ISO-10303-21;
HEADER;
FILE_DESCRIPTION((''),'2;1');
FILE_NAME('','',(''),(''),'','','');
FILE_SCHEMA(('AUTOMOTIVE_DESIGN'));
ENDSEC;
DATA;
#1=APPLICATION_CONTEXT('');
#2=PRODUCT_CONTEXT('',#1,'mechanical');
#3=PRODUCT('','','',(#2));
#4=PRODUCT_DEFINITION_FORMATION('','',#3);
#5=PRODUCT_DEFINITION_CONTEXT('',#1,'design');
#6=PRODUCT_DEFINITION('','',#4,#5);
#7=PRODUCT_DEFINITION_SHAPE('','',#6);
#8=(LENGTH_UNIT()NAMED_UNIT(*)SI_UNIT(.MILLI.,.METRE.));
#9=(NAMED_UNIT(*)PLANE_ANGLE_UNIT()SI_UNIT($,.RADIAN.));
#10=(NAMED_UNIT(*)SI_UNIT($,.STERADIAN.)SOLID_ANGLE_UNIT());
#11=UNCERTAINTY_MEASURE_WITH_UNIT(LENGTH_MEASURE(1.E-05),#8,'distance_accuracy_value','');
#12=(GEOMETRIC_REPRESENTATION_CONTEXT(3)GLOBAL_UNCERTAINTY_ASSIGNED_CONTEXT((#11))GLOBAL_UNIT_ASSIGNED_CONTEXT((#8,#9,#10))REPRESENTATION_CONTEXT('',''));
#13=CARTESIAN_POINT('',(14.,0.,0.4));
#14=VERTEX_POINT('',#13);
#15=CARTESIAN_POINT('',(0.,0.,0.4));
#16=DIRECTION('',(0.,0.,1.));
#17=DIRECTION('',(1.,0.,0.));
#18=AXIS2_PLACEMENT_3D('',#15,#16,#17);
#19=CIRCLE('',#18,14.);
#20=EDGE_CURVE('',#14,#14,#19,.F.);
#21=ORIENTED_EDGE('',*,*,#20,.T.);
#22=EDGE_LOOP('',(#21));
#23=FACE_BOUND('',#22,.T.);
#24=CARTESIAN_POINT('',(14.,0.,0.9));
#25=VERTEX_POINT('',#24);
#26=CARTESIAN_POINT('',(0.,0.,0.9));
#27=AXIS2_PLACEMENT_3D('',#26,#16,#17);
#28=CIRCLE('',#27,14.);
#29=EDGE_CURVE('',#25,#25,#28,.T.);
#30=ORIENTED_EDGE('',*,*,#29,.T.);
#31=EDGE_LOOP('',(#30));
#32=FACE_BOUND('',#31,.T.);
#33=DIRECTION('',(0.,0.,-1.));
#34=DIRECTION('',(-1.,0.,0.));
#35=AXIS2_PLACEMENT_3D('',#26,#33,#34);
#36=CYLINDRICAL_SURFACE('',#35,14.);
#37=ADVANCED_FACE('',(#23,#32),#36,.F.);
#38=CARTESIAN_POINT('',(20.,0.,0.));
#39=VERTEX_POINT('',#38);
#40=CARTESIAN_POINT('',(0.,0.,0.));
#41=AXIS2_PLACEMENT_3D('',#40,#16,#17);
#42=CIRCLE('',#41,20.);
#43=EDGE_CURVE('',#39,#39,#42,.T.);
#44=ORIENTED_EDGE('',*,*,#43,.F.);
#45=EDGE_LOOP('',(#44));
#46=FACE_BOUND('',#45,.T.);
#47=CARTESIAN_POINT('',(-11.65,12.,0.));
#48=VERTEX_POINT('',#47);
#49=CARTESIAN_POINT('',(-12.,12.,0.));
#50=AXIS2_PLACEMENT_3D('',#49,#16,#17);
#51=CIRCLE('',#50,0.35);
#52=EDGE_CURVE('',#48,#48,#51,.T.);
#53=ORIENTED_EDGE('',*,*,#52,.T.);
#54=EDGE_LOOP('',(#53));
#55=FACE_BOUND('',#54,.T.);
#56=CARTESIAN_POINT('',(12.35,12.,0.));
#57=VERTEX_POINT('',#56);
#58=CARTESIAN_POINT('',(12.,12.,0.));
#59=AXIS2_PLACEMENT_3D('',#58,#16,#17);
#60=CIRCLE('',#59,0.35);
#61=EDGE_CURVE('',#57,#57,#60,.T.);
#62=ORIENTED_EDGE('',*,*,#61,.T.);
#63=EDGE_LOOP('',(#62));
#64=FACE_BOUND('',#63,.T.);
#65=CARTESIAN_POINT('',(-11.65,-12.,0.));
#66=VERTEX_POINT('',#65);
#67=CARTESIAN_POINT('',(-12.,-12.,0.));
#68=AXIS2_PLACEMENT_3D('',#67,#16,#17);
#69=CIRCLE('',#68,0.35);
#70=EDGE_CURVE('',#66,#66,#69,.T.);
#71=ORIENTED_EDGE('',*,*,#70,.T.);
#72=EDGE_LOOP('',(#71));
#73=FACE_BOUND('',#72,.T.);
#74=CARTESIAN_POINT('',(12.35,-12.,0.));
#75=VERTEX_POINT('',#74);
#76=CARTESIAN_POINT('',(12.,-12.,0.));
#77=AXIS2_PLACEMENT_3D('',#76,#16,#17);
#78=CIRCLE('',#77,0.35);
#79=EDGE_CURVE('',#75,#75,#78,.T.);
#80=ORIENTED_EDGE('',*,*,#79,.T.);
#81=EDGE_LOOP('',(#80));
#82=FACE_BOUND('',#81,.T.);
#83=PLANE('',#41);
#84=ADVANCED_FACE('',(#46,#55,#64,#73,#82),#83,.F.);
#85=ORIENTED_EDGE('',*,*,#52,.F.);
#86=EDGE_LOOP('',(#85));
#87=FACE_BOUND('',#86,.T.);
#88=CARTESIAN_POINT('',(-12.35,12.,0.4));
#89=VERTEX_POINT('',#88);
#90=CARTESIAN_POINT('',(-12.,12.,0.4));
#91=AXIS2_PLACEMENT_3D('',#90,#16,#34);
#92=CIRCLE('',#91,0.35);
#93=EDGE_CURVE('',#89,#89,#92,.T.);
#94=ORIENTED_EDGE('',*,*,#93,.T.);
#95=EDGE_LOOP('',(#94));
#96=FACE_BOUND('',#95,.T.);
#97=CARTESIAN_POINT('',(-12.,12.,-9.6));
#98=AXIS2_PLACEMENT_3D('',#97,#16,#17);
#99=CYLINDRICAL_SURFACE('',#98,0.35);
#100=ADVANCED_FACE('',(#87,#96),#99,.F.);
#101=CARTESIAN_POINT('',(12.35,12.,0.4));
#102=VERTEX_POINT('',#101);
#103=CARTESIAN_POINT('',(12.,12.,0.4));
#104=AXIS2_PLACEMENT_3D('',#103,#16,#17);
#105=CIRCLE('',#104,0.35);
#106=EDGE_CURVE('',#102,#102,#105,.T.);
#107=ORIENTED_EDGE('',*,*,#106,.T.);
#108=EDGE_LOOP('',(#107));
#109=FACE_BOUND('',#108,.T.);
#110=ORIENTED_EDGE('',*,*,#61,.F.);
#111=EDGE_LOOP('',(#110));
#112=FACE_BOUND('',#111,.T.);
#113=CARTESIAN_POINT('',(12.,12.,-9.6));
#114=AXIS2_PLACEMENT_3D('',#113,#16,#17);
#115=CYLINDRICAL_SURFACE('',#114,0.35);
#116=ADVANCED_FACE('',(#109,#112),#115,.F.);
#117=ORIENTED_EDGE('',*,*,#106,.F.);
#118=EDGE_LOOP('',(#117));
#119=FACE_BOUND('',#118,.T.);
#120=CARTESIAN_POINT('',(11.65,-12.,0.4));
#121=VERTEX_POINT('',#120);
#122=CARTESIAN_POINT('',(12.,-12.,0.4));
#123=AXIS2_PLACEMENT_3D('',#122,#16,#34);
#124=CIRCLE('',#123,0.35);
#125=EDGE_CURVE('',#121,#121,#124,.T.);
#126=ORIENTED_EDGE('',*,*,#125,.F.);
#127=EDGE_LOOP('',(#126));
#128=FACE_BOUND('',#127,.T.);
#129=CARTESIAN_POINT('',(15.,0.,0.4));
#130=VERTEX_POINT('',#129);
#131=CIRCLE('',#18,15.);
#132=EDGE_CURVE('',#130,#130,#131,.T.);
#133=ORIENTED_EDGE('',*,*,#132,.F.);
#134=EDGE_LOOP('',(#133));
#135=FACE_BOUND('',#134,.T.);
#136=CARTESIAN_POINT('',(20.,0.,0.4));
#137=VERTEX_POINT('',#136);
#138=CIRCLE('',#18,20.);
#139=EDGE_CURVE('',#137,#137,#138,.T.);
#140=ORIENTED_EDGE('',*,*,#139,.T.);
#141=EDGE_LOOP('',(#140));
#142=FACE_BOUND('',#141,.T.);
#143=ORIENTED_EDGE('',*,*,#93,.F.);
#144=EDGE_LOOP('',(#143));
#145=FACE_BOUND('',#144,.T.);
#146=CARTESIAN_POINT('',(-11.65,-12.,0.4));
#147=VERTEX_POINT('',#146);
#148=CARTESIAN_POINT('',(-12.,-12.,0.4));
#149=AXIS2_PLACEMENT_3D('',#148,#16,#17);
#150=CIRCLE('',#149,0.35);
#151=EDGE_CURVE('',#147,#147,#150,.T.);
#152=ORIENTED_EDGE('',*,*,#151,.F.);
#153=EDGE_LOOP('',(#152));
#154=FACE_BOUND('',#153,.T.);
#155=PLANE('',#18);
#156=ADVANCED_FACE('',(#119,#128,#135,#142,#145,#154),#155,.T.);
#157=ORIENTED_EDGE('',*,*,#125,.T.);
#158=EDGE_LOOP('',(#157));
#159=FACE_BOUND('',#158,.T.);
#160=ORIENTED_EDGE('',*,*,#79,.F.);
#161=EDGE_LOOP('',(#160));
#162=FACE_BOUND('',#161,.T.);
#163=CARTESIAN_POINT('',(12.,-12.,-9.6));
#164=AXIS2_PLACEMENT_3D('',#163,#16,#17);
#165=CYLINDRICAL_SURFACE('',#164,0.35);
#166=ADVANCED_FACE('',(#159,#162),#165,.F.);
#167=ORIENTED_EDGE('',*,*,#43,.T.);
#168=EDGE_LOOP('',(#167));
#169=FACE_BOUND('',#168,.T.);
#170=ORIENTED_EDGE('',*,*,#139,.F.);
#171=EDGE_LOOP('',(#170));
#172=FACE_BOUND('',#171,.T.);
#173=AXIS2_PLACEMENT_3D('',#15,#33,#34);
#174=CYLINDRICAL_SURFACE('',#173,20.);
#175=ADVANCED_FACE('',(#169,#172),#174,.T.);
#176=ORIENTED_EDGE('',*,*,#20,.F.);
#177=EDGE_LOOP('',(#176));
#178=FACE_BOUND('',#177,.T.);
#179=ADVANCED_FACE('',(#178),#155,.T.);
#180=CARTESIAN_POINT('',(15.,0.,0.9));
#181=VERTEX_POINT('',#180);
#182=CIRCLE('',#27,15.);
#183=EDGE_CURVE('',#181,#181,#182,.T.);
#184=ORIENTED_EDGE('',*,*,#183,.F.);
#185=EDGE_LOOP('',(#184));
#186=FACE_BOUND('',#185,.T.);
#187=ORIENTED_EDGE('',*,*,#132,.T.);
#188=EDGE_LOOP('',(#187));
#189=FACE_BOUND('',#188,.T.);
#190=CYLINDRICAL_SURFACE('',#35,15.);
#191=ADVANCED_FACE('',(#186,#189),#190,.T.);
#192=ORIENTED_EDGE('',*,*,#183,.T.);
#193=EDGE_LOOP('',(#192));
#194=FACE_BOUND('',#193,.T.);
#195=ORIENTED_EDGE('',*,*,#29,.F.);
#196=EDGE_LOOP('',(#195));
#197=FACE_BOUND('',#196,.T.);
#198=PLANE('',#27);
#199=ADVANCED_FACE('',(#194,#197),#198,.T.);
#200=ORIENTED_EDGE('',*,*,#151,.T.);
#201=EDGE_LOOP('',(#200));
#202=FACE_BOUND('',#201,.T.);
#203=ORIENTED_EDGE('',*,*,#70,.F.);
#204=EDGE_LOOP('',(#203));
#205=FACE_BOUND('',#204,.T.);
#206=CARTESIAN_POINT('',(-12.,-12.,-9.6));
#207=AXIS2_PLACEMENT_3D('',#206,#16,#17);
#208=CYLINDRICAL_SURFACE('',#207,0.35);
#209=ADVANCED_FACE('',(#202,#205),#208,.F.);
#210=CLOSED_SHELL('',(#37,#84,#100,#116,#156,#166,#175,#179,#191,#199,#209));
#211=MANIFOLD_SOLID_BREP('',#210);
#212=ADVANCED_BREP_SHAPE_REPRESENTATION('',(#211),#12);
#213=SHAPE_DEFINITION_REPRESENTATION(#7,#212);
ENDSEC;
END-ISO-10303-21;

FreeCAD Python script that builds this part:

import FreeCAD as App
import Part
import Sketcher

doc = App.newDocument("Part")
body = doc.addObject("PartDesign::Body", "Body")

# Sketch on XY plane
sketch1 = body.newObject("Sketcher::SketchObject", "Sketch")
sketch1.AttachmentSupport = (doc.getObject("XY_Plane"), [""])
sketch1.MapMode = "FlatFace"
sketch1.addGeometry(Part.Circle(App.Vector(0, 0, 0), App.Vector(0, 0, 1), 20), False)
sketch1.addConstraint([
    Sketcher.Constraint("Coincident", 0, 3, -1, 1),
    Sketcher.Constraint("Diameter", 0, 40.0),
])
pad1 = body.newObject("PartDesign::Pad", "Pad")
pad1.Profile = sketch1
pad1.Length = 0.4

# Sketch on XY plane
sketch2 = body.newObject("Sketcher::SketchObject", "Sketch001")
sketch2.AttachmentSupport = (doc.getObject("XY_Plane"), [""])
sketch2.MapMode = "FlatFace"
sketch2.AttachmentOffset = App.Placement(App.Vector(0, 0, 0.4), App.Rotation())
sketch2.addGeometry([
    Part.Circle(App.Vector(12, 12, 0), App.Vector(0, 0, 1), 0.35),
    Part.Circle(App.Vector(-12, 12, 0), App.Vector(0, 0, 1), 0.35),
    Part.Circle(App.Vector(12, -12, 0), App.Vector(0, 0, 1), 0.35),
    Part.Circle(App.Vector(-12, -12, 0), App.Vector(0, 0, 1), 0.35),
], False)
sketch2.addConstraint([
    Sketcher.Constraint("Equal", 0, 1),
    Sketcher.Constraint("Equal", 1, 2),
    Sketcher.Constraint("Equal", 2, 3),
    Sketcher.Constraint("Symmetric", 1, 3, 2, 3, -1, 1),
    Sketcher.Constraint("Symmetric", 0, 3, 3, 3, -1, 1),
    Sketcher.Constraint("Symmetric", 0, 3, 1, 3, -2),
    Sketcher.Constraint("Diameter", 0, 0.7),
    Sketcher.Constraint("DistanceX", -1, 1, 0, 3, 12.0),
    Sketcher.Constraint("DistanceY", -1, 1, 0, 3, 12.0),
])
pocket1 = body.newObject("PartDesign::Pocket", "Pocket")
pocket1.Profile = sketch2
pocket1.Length = 10

# Sketch on XY plane
sketch3 = body.newObject("Sketcher::SketchObject", "Sketch002")
sketch3.AttachmentSupport = (doc.getObject("XY_Plane"), [""])
sketch3.MapMode = "FlatFace"
sketch3.AttachmentOffset = App.Placement(App.Vector(0, 0, 0.4), App.Rotation())
sketch3.addGeometry([
    Part.Circle(App.Vector(0, 0, 0), App.Vector(0, 0, 1), 15),
    Part.Circle(App.Vector(0, 0, 0), App.Vector(0, 0, 1), 14),
], False)
sketch3.addConstraint([
    Sketcher.Constraint("Coincident", 0, 3, -1, 1),
    Sketcher.Constraint("Coincident", 1, 3, -1, 1),
    Sketcher.Constraint("Diameter", 0, 30.0),
    Sketcher.Constraint("Diameter", 1, 28.0),
])
pad2 = body.newObject("PartDesign::Pad", "Pad001")
pad2.Profile = sketch3
pad2.Length = 0.5

doc.recompute()
